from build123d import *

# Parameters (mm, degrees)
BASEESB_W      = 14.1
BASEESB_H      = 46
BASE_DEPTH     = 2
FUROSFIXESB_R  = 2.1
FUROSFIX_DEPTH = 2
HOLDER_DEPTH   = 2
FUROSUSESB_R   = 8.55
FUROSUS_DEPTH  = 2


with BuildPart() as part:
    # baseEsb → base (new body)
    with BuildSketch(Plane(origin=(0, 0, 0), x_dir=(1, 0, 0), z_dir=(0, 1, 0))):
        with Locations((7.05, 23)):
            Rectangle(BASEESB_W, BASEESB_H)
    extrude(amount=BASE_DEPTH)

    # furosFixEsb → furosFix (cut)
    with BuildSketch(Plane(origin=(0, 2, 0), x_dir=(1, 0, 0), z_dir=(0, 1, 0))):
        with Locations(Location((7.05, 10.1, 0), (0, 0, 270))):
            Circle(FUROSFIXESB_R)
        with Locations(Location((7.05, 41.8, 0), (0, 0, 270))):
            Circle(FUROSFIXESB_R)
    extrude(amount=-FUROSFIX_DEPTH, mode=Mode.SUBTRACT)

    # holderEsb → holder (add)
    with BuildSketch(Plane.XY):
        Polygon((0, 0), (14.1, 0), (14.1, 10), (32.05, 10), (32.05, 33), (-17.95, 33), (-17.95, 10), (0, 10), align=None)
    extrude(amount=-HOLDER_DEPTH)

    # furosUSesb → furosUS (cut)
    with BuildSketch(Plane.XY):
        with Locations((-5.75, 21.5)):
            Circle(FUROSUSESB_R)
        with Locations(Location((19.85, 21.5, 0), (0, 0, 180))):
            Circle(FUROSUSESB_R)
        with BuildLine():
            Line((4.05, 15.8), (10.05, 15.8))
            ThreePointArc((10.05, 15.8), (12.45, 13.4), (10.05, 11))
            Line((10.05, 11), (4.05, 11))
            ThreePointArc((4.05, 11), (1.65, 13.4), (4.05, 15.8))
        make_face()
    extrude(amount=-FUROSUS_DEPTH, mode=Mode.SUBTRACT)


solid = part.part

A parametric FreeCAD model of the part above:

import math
import FreeCAD as App
import Part
import Sketcher

V = App.Vector


def add_polygon(sketch, points):
    """Adds a closed chain of lines whose ends are joined by coincident constraints."""
    first, n = sketch.GeometryCount, len(points)
    for a, b in zip(points, points[1:] + points[:1]):
        sketch.addGeometry(Part.LineSegment(App.Vector(*a, 0), App.Vector(*b, 0)), False)
    for i in range(n):
        sketch.addConstraint(Sketcher.Constraint("Coincident", first + i, 2, first + (i + 1) % n, 1))

doc = App.newDocument("Part")
params = doc.addObject("Spreadsheet::Sheet", "Params")
for row, (alias, value) in enumerate([
    ("sketch1_height", "46 mm"),
    ("sketch1_width", "14.1 mm"),
    ("pad1_length", "2 mm"),
    ("sketch2_diameter", "4.2 mm"),
    ("pocket1_length", "2 mm"),
    ("sketch3_width", "50 mm"),
    ("sketch3_height", "10 mm"),
    ("sketch3_height2", "23 mm"),
    ("sketch3_width2", "14.1 mm"),
    ("pad2_length", "2 mm"),
    ("sketch4_diameter", "17.1 mm"),
    ("sketch4_radius", "2.4 mm"),
    ("sketch4_width", "6 mm"),
    ("pocket2_length", "2 mm"),
], start=1):
    params.set(f"A{row}", alias)
    params.set(f"B{row}", "=" + value)
    params.setAlias(f"B{row}", alias)

body = doc.addObject("PartDesign::Body", "Body")

sketch1 = body.newObject("Sketcher::SketchObject", "Sketch")
sketch1.AttachmentSupport = (doc.getObject("XZ_Plane"), [""])
sketch1.MapMode = "FlatFace"
add_polygon(sketch1, [(0, -46), (0, 0), (14, 0), (14, -46)])
sketch1.addConstraint(Sketcher.Constraint("Vertical", 0))
sketch1.addConstraint(Sketcher.Constraint("Horizontal", 1))
sketch1.addConstraint(Sketcher.Constraint("Vertical", 2))
sketch1.addConstraint(Sketcher.Constraint("Horizontal", 3))
sketch1.addConstraint(Sketcher.Constraint("Coincident", 0, 2, -1, 1))
sketch1.addConstraint(Sketcher.Constraint("DistanceY", 0, 1, 0, 2, 46.0))
sketch1.addConstraint(Sketcher.Constraint("DistanceX", 1, 1, 1, 2, 14.1))
sketch1.setExpression("Constraints[9]", "Params.sketch1_height")
sketch1.setExpression("Constraints[10]", "Params.sketch1_width")
pad1 = body.newObject("PartDesign::Pad", "Pad")
pad1.Profile = sketch1
pad1.setExpression("Length", "Params.pad1_length")
pad1.Reversed = True

sketch2 = body.newObject("Sketcher::SketchObject", "Sketch001")
sketch2.AttachmentSupport = (doc.getObject("XZ_Plane"), [""])
sketch2.MapMode = "FlatFace"
sketch2.AttachmentOffset = App.Placement(V(0, 0, -2), App.Rotation())
sketch2.addGeometry(Part.Circle(V(7, -10.1, 0), V(0, 0, 1), 2.1), False)
sketch2.addGeometry(Part.Circle(V(7, -41.8, 0), V(0, 0, 1), 2.1), False)
sketch2.addConstraint(Sketcher.Constraint("Equal", 0, 1))
sketch2.addConstraint(Sketcher.Constraint("Vertical", 0, 3, 1, 3))
sketch2.addConstraint(Sketcher.Constraint("Diameter", 0, 4.2))
sketch2.addConstraint(Sketcher.Constraint("DistanceY", 0, 3, -1, 1, 10.1))
sketch2.addConstraint(Sketcher.Constraint("DistanceY", 1, 3, -1, 1, 41.8))
sketch2.addConstraint(Sketcher.Constraint("DistanceX", -1, 1, 0, 3, 7.05))
sketch2.setExpression("Constraints[2]", "Params.sketch2_diameter")
pocket1 = body.newObject("PartDesign::Pocket", "Pocket")
pocket1.Profile = sketch2
pocket1.setExpression("Length", "Params.pocket1_length")
pocket1.Reversed = True

sketch3 = body.newObject("Sketcher::SketchObject", "Sketch002")
sketch3.AttachmentSupport = (doc.getObject("XY_Plane"), [""])
sketch3.MapMode = "FlatFace"
add_polygon(sketch3, [(0, 0), (14, 0), (14, 10), (32, 10), (32, 33), (-18, 33), (-18, 10), (0, 10)])
sketch3.addConstraint(Sketcher.Constraint("Horizontal", 0))
sketch3.addConstraint(Sketcher.Constraint("Vertical", 1))
sketch3.addConstraint(Sketcher.Constraint("Horizontal", 2))
sketch3.addConstraint(Sketcher.Constraint("Vertical", 3))
sketch3.addConstraint(Sketcher.Constraint("Horizontal", 4))
sketch3.addConstraint(Sketcher.Constraint("Vertical", 5))
sketch3.addConstraint(Sketcher.Constraint("Horizontal", 6))
sketch3.addConstraint(Sketcher.Constraint("Vertical", 7))
sketch3.addConstraint(Sketcher.Constraint("Coincident", 7, 2, -1, 1))
sketch3.addConstraint(Sketcher.Constraint("Horizontal", 2, 2, 5, 2))
sketch3.addConstraint(Sketcher.Constraint("Equal", 2, 6))
sketch3.addConstraint(Sketcher.Constraint("DistanceX", 4, 2, 4, 1, 50.0))
sketch3.addConstraint(Sketcher.Constraint("DistanceY", 1, 1, 1, 2, 10.0))
sketch3.addConstraint(Sketcher.Constraint("DistanceY", 3, 1, 3, 2, 23.0))
sketch3.addConstraint(Sketcher.Constraint("DistanceX", 0, 1, 0, 2, 14.1))
sketch3.setExpression("Constraints[19]", "Params.sketch3_width")
sketch3.setExpression("Constraints[20]", "Params.sketch3_height")
sketch3.setExpression("Constraints[21]", "Params.sketch3_height2")
sketch3.setExpression("Constraints[22]", "Params.sketch3_width2")
pad2 = body.newObject("PartDesign::Pad", "Pad001")
pad2.Profile = sketch3
pad2.setExpression("Length", "Params.pad2_length")
pad2.Reversed = True

sketch4 = body.newObject("Sketcher::SketchObject", "Sketch003")
sketch4.AttachmentSupport = (doc.getObject("XY_Plane"), [""])
sketch4.MapMode = "FlatFace"
sketch4.addGeometry(Part.Circle(V(-5.8, 21.5, 0), V(0, 0, 1), 8.6), False)
sketch4.addGeometry(Part.Circle(V(19.9, 21.5, 0), V(0, 0, 1), 8.6), False)
sketch4.addGeometry(Part.LineSegment(V(10.1, 15.8, 0), V(4, 15.8, 0)), False)
sketch4.addGeometry(Part.ArcOfCircle(Part.Circle(V(4, 13.4, 0), V(0, 0, 1), 2.4), math.radians(90), math.radians(270)), False)
sketch4.addGeometry(Part.LineSegment(V(4, 11, 0), V(10.1, 11, 0)), False)
sketch4.addGeometry(Part.ArcOfCircle(Part.Circle(V(10.1, 13.4, 0), V(0, 0, 1), 2.4), math.radians(-90), math.radians(90)), False)
sketch4.addConstraint(Sketcher.Constraint("Tangent", 2, 2, 3, 1))
sketch4.addConstraint(Sketcher.Constraint("Tangent", 3, 2, 4, 1))
sketch4.addConstraint(Sketcher.Constraint("Tangent", 4, 2, 5, 1))
sketch4.addConstraint(Sketcher.Constraint("Tangent", 5, 2, 2, 1))
sketch4.addConstraint(Sketcher.Constraint("Horizontal", 2))
sketch4.addConstraint(Sketcher.Constraint("Horizontal", 4))
sketch4.addConstraint(Sketcher.Constraint("Equal", 0, 1))
sketch4.addConstraint(Sketcher.Constraint("Horizontal", 0, 3, 1, 3))
sketch4.addConstraint(Sketcher.Constraint("Diameter", 0, 17.1))
sketch4.addConstraint(Sketcher.Constraint("Radius", 3, 2.4))
sketch4.addConstraint(Sketcher.Constraint("DistanceX", 2, 2, 2, 1, 6.0))
sketch4.addConstraint(Sketcher.Constraint("DistanceY", -1, 1, 3, 2, 11.0))
sketch4.addConstraint(Sketcher.Constraint("DistanceY", -1, 1, 0, 3, 21.5))
sketch4.addConstraint(Sketcher.Constraint("DistanceX", 0, 3, 1, 3, 25.6))
sketch4.addConstraint(Sketcher.Constraint("DistanceX", 0, 3, 3, 3, 9.8))
sketch4.addConstraint(Sketcher.Constraint("DistanceX", 0, 3, -1, 1, 5.75))
sketch4.setExpression("Constraints[8]", "Params.sketch4_diameter")
sketch4.setExpression("Constraints[9]", "Params.sketch4_radius")
sketch4.setExpression("Constraints[10]", "Params.sketch4_width")
pocket2 = body.newObject("PartDesign::Pocket", "Pocket001")
pocket2.Profile = sketch4
pocket2.setExpression("Length", "Params.pocket2_length")

doc.recompute()
